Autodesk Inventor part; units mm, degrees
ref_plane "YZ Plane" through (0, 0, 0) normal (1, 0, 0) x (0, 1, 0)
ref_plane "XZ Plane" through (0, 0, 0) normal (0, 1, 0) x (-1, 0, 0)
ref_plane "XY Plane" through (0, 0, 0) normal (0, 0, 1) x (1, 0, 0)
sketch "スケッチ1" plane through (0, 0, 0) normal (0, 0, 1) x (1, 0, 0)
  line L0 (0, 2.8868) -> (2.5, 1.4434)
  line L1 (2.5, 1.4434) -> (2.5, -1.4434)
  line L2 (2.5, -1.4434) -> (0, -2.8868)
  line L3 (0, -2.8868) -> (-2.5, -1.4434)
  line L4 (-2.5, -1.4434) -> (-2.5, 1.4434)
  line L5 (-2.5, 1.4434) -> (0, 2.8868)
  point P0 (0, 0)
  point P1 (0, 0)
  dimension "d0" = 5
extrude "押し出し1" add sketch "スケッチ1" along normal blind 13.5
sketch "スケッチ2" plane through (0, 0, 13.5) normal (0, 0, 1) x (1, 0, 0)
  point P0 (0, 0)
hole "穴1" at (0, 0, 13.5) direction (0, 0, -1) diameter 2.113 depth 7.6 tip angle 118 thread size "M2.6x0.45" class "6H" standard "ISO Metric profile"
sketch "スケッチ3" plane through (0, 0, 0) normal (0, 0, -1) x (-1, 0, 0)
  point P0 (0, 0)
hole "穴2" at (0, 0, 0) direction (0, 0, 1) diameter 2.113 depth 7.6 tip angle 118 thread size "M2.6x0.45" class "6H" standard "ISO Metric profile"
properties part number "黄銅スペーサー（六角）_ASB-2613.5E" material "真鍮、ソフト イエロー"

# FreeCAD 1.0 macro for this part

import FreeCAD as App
import Part
import Sketcher

V = App.Vector
Q = App.Units.Quantity


def add_polygon(sketch, points):
    """Adds a closed chain of lines whose ends are joined by coincident constraints."""
    first, n = sketch.GeometryCount, len(points)
    for a, b in zip(points, points[1:] + points[:1]):
        sketch.addGeometry(Part.LineSegment(App.Vector(*a, 0), App.Vector(*b, 0)), False)
    for i in range(n):
        sketch.addConstraint(Sketcher.Constraint("Coincident", first + i, 2, first + (i + 1) % n, 1))

doc = App.newDocument("Part")
body = doc.addObject("PartDesign::Body", "Body")

# Sketch on XY plane
sketch1 = body.newObject("Sketcher::SketchObject", "Sketch")
sketch1.AttachmentSupport = (doc.getObject("XY_Plane"), [""])
sketch1.MapMode = "FlatFace"
add_polygon(sketch1, [(2.5, 1.4), (0, 2.9), (-2.5, 1.4), (-2.5, -1.4), (0, -2.9), (2.5, -1.4)])  # lines 0-5
sketch1.addConstraint([
    Sketcher.Constraint("Vertical", 2),
    Sketcher.Constraint("Vertical", 5),
    Sketcher.Constraint("Symmetric", 0, 2, 3, 2, -1, 1),
    Sketcher.Constraint("Symmetric", 1, 2, 4, 2, -1, 1),
    Sketcher.Constraint("PointOnObject", 0, 2, -2),
    Sketcher.Constraint("Parallel", 0, 3),
    Sketcher.Constraint("Horizontal", 2, 2, 4, 2),
    Sketcher.Constraint("DistanceX", 2, 2, 4, 2, Q("5 mm")),
    Sketcher.Constraint("Angle", 0, Q("149.9996 deg")),
    Sketcher.Constraint("DistanceY", 2, 2, 2, 1, Q("2.8868 mm")),
])
pad1 = body.newObject("PartDesign::Pad", "Pad")
pad1.Profile = sketch1
pad1.Length = 13.5

# Sketch on XY plane
sketch2 = body.newObject("Sketcher::SketchObject", "Sketch001")
sketch2.AttachmentSupport = (doc.getObject("XY_Plane"), [""])
sketch2.MapMode = "FlatFace"
sketch2.AttachmentOffset = App.Placement(V(0, 0, 13.5), App.Rotation())
sketch2.addGeometry(Part.Circle(V(0, 0, 0), V(0, 0, 1), 1.1), False)
sketch2.addConstraint([
    Sketcher.Constraint("Coincident", 0, 3, -1, 1),
    Sketcher.Constraint("Diameter", 0, Q("2.113 mm")),
])
doc.recompute()
hole = body.newObject("PartDesign::Hole", "Hole")
hole.Profile = sketch2
hole.ThreadType = "None"
hole.Diameter = 2.113
hole.DepthType = "Dimension"
hole.Depth = 7.6
hole.DrillPoint = "Angled"
hole.DrillPointAngle = 118

# Sketch on XY plane
sketch3 = body.newObject("Sketcher::SketchObject", "Sketch002")
sketch3.AttachmentSupport = (doc.getObject("XY_Plane"), [""])
sketch3.MapMode = "FlatFace"
sketch3.addGeometry(Part.Circle(V(0, 0, 0), V(0, 0, 1), 1.1), False)
sketch3.addConstraint([
    Sketcher.Constraint("Coincident", 0, 3, -1, 1),
    Sketcher.Constraint("Diameter", 0, Q("2.113 mm")),
])
doc.recompute()
hole2 = body.newObject("PartDesign::Hole", "Hole001")
hole2.Profile = sketch3
hole2.ThreadType = "None"
hole2.Diameter = 2.113
hole2.DepthType = "Dimension"
hole2.Depth = 7.6
hole2.DrillPoint = "Angled"
hole2.DrillPointAngle = 118
hole2.Reversed = True

doc.recompute()
